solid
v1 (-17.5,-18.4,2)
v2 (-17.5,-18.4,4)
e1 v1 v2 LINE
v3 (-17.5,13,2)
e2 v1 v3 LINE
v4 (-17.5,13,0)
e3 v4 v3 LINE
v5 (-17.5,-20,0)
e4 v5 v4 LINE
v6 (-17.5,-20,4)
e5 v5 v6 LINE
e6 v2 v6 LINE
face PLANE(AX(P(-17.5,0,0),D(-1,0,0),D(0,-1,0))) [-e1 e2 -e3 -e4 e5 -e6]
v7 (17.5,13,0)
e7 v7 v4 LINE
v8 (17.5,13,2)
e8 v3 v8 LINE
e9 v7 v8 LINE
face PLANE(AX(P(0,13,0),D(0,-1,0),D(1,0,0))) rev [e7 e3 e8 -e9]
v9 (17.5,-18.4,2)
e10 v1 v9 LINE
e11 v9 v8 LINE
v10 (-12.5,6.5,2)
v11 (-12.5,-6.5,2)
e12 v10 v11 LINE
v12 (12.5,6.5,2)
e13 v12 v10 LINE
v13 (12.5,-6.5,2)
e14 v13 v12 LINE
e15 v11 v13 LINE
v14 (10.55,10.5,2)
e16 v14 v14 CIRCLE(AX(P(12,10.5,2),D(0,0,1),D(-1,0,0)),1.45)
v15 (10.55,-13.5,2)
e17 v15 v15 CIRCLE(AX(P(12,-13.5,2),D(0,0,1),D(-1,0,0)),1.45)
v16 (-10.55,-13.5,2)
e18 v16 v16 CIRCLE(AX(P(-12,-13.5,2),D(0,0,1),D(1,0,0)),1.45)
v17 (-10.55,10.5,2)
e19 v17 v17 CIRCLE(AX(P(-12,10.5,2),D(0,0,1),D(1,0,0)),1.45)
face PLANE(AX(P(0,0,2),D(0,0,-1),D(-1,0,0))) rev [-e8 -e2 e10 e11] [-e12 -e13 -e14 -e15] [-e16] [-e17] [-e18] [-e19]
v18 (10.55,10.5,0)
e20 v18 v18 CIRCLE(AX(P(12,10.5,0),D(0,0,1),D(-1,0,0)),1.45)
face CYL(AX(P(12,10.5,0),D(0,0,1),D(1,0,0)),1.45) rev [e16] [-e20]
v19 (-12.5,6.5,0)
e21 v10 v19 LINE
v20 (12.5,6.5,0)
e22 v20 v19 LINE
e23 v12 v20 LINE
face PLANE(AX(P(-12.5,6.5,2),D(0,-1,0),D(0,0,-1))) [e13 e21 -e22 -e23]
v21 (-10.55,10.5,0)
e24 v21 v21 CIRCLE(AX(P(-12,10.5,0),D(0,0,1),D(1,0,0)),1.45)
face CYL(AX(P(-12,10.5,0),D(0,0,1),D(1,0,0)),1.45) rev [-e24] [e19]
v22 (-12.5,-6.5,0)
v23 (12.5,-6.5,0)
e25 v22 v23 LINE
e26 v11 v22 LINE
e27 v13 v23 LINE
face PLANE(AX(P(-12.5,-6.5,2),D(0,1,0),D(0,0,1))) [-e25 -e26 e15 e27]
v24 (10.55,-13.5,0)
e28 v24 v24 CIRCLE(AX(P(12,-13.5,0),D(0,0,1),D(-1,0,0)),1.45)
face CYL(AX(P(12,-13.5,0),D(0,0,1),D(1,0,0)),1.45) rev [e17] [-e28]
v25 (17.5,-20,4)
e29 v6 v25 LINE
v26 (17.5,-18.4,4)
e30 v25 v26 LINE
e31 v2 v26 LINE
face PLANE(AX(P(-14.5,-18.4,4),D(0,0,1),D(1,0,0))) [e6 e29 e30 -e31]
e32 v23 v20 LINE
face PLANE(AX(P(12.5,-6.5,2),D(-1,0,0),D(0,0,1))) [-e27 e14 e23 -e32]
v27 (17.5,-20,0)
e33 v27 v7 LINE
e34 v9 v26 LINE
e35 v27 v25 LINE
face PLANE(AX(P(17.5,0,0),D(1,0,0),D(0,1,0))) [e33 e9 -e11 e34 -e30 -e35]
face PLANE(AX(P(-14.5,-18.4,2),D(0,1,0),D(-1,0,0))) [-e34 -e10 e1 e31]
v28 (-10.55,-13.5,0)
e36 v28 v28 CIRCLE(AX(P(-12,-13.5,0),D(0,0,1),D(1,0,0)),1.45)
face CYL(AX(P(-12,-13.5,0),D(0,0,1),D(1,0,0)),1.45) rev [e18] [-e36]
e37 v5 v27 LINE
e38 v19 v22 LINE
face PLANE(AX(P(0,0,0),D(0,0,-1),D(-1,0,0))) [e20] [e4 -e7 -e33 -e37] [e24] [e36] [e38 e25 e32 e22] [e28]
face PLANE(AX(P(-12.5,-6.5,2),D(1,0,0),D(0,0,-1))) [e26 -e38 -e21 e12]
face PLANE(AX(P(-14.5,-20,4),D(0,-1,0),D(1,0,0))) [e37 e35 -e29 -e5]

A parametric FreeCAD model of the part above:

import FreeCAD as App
import Part
import Sketcher
from FreeCAD import Vector
Q = App.Units.Quantity

doc = App.newDocument("Part")
body = doc.addObject("PartDesign::Body", "Body")

sketch1 = doc.addObject("Sketcher::SketchObject", "Sketch")
body.addObject(sketch1)
sketch1.AttachmentSupport = (doc.XY_Plane, [""])
sketch1.MapMode = "FlatFace"
sketch1.addGeometry(Part.LineSegment(Vector(-14.5, 12, 0), Vector(-14.5, -16, 0)), False)
sketch1.addGeometry(Part.LineSegment(Vector(-14.5, -16, 0), Vector(14.5, -16, 0)), False)
sketch1.addGeometry(Part.LineSegment(Vector(14.5, -16, 0), Vector(14.5, 12, 0)), False)
sketch1.addGeometry(Part.LineSegment(Vector(14.5, 12, 0), Vector(-14.5, 12, 0)), False)
sketch1.addGeometry(Part.LineSegment(Vector(12.5, -6.5, 0), Vector(-12.5, -6.5, 0)), False)
sketch1.addGeometry(Part.LineSegment(Vector(-12.5, -6.5, 0), Vector(-12.5, 6.5, 0)), False)
sketch1.addGeometry(Part.LineSegment(Vector(-12.5, 6.5, 0), Vector(12.5, 6.5, 0)), False)
sketch1.addGeometry(Part.LineSegment(Vector(12.5, 6.5, 0), Vector(12.5, -6.5, 0)), False)
sketch1.addConstraint(Sketcher.Constraint("Coincident", 0, 2, 1, 1))
sketch1.addConstraint(Sketcher.Constraint("Coincident", 1, 2, 2, 1))
sketch1.addConstraint(Sketcher.Constraint("Coincident", 2, 2, 3, 1))
sketch1.addConstraint(Sketcher.Constraint("Coincident", 3, 2, 0, 1))
sketch1.addConstraint(Sketcher.Constraint("Coincident", 4, 2, 5, 1))
sketch1.addConstraint(Sketcher.Constraint("Coincident", 5, 2, 6, 1))
sketch1.addConstraint(Sketcher.Constraint("Coincident", 6, 2, 7, 1))
sketch1.addConstraint(Sketcher.Constraint("Coincident", 7, 2, 4, 1))
sketch1.addConstraint(Sketcher.Constraint("Vertical", 0))
sketch1.addConstraint(Sketcher.Constraint("Horizontal", 1))
sketch1.addConstraint(Sketcher.Constraint("Vertical", 2))
sketch1.addConstraint(Sketcher.Constraint("Horizontal", 3))
sketch1.addConstraint(Sketcher.Constraint("Horizontal", 4))
sketch1.addConstraint(Sketcher.Constraint("Vertical", 5))
sketch1.addConstraint(Sketcher.Constraint("Horizontal", 6))
sketch1.addConstraint(Sketcher.Constraint("Vertical", 7))
sketch1.addConstraint(Sketcher.Constraint("Symmetric", 4, 2, 6, 2, -1, 1))
sketch1.addConstraint(Sketcher.Constraint("DistanceX", 1, 1, 1, 2, Q("29 mm")))
sketch1.addConstraint(Sketcher.Constraint("DistanceX", 4, 2, 4, 1, Q("25 mm")))
sketch1.addConstraint(Sketcher.Constraint("DistanceY", 0, 2, 0, 1, Q("28 mm")))
sketch1.addConstraint(Sketcher.Constraint("DistanceY", 5, 1, 5, 2, Q("13 mm")))
sketch1.addConstraint(Sketcher.Constraint("DistanceY", 0, 2, -1, 1, Q("16 mm")))
sketch1.addConstraint(Sketcher.Constraint("DistanceX", 0, 2, 4, 2, Q("2 mm")))
pad1 = doc.addObject("PartDesign::Pad", "Pad")
body.addObject(pad1)
pad1.Profile = sketch1
pad1.Length = 2

sketch2 = doc.addObject("Sketcher::SketchObject", "Sketch001")
body.addObject(sketch2)
sketch2.AttachmentSupport = (doc.XY_Plane, [""])
sketch2.MapMode = "FlatFace"
sketch2.AttachmentOffset = App.Placement(Vector(0, 0, 2), App.Rotation())
sketch2.addGeometry(Part.Circle(Vector(-12, 10.5, 0), Vector(0, 0, 1), 1.45), False)
sketch2.addGeometry(Part.Circle(Vector(-12, -13.5, 0), Vector(0, 0, 1), 1.45), False)
sketch2.addGeometry(Part.Circle(Vector(12, -13.5, 0), Vector(0, 0, 1), 1.45), False)
sketch2.addGeometry(Part.Circle(Vector(12, 10.5, 0), Vector(0, 0, 1), 1.45), False)
sketch2.addConstraint(Sketcher.Constraint("Equal", 0, 1))
sketch2.addConstraint(Sketcher.Constraint("Equal", 1, 2))
sketch2.addConstraint(Sketcher.Constraint("Equal", 2, 3))
sketch2.addConstraint(Sketcher.Constraint("Symmetric", 1, 3, 2, 3, -2))
sketch2.addConstraint(Sketcher.Constraint("Symmetric", 0, 3, 3, 3, -2))
sketch2.addConstraint(Sketcher.Constraint("Vertical", 0, 3, 1, 3))
sketch2.addConstraint(Sketcher.Constraint("Diameter", 0, Q("2.9 mm")))
sketch2.addConstraint(Sketcher.Constraint("DistanceX", 0, 3, -1, 1, Q("12 mm")))
sketch2.addConstraint(Sketcher.Constraint("DistanceY", 1, 3, 0, 3, Q("24 mm")))
sketch2.addConstraint(Sketcher.Constraint("DistanceY", -1, 1, 0, 3, Q("10.5 mm")))
pocket1 = doc.addObject("PartDesign::Pocket", "Pocket")
body.addObject(pocket1)
pocket1.Profile = sketch2
pocket1.Type = "ThroughAll"

sketch3 = doc.addObject("Sketcher::SketchObject", "Sketch002")
body.addObject(sketch3)
sketch3.AttachmentSupport = (doc.YZ_Plane, [""])
sketch3.MapMode = "FlatFace"
sketch3.AttachmentOffset = App.Placement(Vector(0, 0, 14.5), App.Rotation())
sketch3.addGeometry(Part.LineSegment(Vector(-20, 4, 0), Vector(-20, 0, 0)), False)
sketch3.addGeometry(Part.LineSegment(Vector(-20, 0, 0), Vector(-16, 0, 0)), False)
sketch3.addGeometry(Part.LineSegment(Vector(-16, 0, 0), Vector(-16, 2, 0)), False)
sketch3.addGeometry(Part.LineSegment(Vector(-16, 2, 0), Vector(-18.4, 2, 0)), False)
sketch3.addGeometry(Part.LineSegment(Vector(-18.4, 2, 0), Vector(-18.4, 4, 0)), False)
sketch3.addGeometry(Part.LineSegment(Vector(-18.4, 4, 0), Vector(-20, 4, 0)), False)
sketch3.addConstraint(Sketcher.Constraint("Coincident", 0, 2, 1, 1))
sketch3.addConstraint(Sketcher.Constraint("Coincident", 1, 2, 2, 1))
sketch3.addConstraint(Sketcher.Constraint("Coincident", 2, 2, 3, 1))
sketch3.addConstraint(Sketcher.Constraint("Coincident", 3, 2, 4, 1))
sketch3.addConstraint(Sketcher.Constraint("Coincident", 4, 2, 5, 1))
sketch3.addConstraint(Sketcher.Constraint("Coincident", 5, 2, 0, 1))
sketch3.addConstraint(Sketcher.Constraint("Vertical", 0))
sketch3.addConstraint(Sketcher.Constraint("Horizontal", 1))
sketch3.addConstraint(Sketcher.Constraint("Vertical", 2))
sketch3.addConstraint(Sketcher.Constraint("Horizontal", 3))
sketch3.addConstraint(Sketcher.Constraint("Vertical", 4))
sketch3.addConstraint(Sketcher.Constraint("Horizontal", 5))
sketch3.addConstraint(Sketcher.Constraint("PointOnObject", 0, 2, -1))
sketch3.addConstraint(Sketcher.Constraint("Equal", 1, 0))
sketch3.addConstraint(Sketcher.Constraint("Equal", 2, 4))
sketch3.addConstraint(Sketcher.Constraint("DistanceX", 1, 1, 1, 2, Q("4 mm")))
sketch3.addConstraint(Sketcher.Constraint("DistanceX", 3, 2, 3, 1, Q("2.4 mm")))
sketch3.addConstraint(Sketcher.Constraint("DistanceX", 0, 2, -1, 1, Q("20 mm")))
pad2 = doc.addObject("PartDesign::Pad", "Pad001")
body.addObject(pad2)
pad2.Profile = sketch3
pad2.Length = 29
pad2.Reversed = True

sketch4 = doc.addObject("Sketcher::SketchObject", "Sketch003")
body.addObject(sketch4)
sketch4.AttachmentSupport = (doc.XZ_Plane, [""])
sketch4.MapMode = "FlatFace"
sketch4.AttachmentOffset = App.Placement(Vector(0, 0, -12), App.Rotation())
sketch4.addGeometry(Part.LineSegment(Vector(-14.5, 0, 0), Vector(-14.5, 2, 0)), False)
sketch4.addGeometry(Part.LineSegment(Vector(-14.5, 2, 0), Vector(14.5, 2, 0)), False)
sketch4.addGeometry(Part.LineSegment(Vector(14.5, 2, 0), Vector(14.5, 0, 0)), False)
sketch4.addGeometry(Part.LineSegment(Vector(14.5, 0, 0), Vector(-14.5, 0, 0)), False)
sketch4.addConstraint(Sketcher.Constraint("Coincident", 0, 2, 1, 1))
sketch4.addConstraint(Sketcher.Constraint("Coincident", 1, 2, 2, 1))
sketch4.addConstraint(Sketcher.Constraint("Coincident", 2, 2, 3, 1))
sketch4.addConstraint(Sketcher.Constraint("Coincident", 3, 2, 0, 1))
sketch4.addConstraint(Sketcher.Constraint("Vertical", 0))
sketch4.addConstraint(Sketcher.Constraint("Horizontal", 1))
sketch4.addConstraint(Sketcher.Constraint("Vertical", 2))
sketch4.addConstraint(Sketcher.Constraint("Horizontal", 3))
sketch4.addConstraint(Sketcher.Constraint("Symmetric", 2, 2, 3, 2, -1, 1))
sketch4.addConstraint(Sketcher.Constraint("DistanceX", 1, 1, 1, 2, Q("29 mm")))
sketch4.addConstraint(Sketcher.Constraint("DistanceY", 0, 1, 0, 2, Q("2 mm")))
pad3 = doc.addObject("PartDesign::Pad", "Pad002")
body.addObject(pad3)
pad3.Profile = sketch4
pad3.Length = 1
pad3.Reversed = True

sketch5 = doc.addObject("Sketcher::SketchObject", "Sketch004")
body.addObject(sketch5)
sketch5.AttachmentSupport = (doc.YZ_Plane, [""])
sketch5.MapMode = "FlatFace"
sketch5.AttachmentOffset = App.Placement(Vector(0, 0, -14.5), App.Rotation())
sketch5.addGeometry(Part.LineSegment(Vector(13, 0, 0), Vector(-20, 0, 0)), False)
sketch5.addGeometry(Part.LineSegment(Vector(-20, 0, 0), Vector(-20, 4, 0)), False)
sketch5.addGeometry(Part.LineSegment(Vector(-20, 4, 0), Vector(-18.4, 4, 0)), False)
sketch5.addGeometry(Part.LineSegment(Vector(-18.4, 4, 0), Vector(-18.4, 2, 0)), False)
sketch5.addGeometry(Part.LineSegment(Vector(-18.4, 2, 0), Vector(13, 2, 0)), False)
sketch5.addGeometry(Part.LineSegment(Vector(13, 2, 0), Vector(13, 0, 0)), False)
sketch5.addConstraint(Sketcher.Constraint("Coincident", 0, 2, 1, 1))
sketch5.addConstraint(Sketcher.Constraint("Coincident", 1, 2, 2, 1))
sketch5.addConstraint(Sketcher.Constraint("Coincident", 2, 2, 3, 1))
sketch5.addConstraint(Sketcher.Constraint("Coincident", 3, 2, 4, 1))
sketch5.addConstraint(Sketcher.Constraint("Coincident", 4, 2, 5, 1))
sketch5.addConstraint(Sketcher.Constraint("Coincident", 5, 2, 0, 1))
sketch5.addConstraint(Sketcher.Constraint("Horizontal", 0))
sketch5.addConstraint(Sketcher.Constraint("Vertical", 1))
sketch5.addConstraint(Sketcher.Constraint("Horizontal", 2))
sketch5.addConstraint(Sketcher.Constraint("Vertical", 3))
sketch5.addConstraint(Sketcher.Constraint("Horizontal", 4))
sketch5.addConstraint(Sketcher.Constraint("Vertical", 5))
sketch5.addConstraint(Sketcher.Constraint("PointOnObject", 0, 2, -1))
sketch5.addConstraint(Sketcher.Constraint("Equal", 3, 5))
sketch5.addConstraint(Sketcher.Constraint("DistanceX", 0, 2, 0, 1, Q("33 mm")))
sketch5.addConstraint(Sketcher.Constraint("DistanceY", 1, 1, 1, 2, Q("4 mm")))
sketch5.addConstraint(Sketcher.Constraint("DistanceX", 2, 1, 2, 2, Q("1.6 mm")))
sketch5.addConstraint(Sketcher.Constraint("DistanceX", 0, 2, -1, 1, Q("20 mm")))
pad4 = doc.addObject("PartDesign::Pad", "Pad003")
body.addObject(pad4)
pad4.Profile = sketch5
pad4.Length = 3
pad4.Reversed = True

sketch6 = doc.addObject("Sketcher::SketchObject", "Sketch005")
body.addObject(sketch6)
sketch6.AttachmentSupport = (doc.YZ_Plane, [""])
sketch6.MapMode = "FlatFace"
sketch6.AttachmentOffset = App.Placement(Vector(0, 0, 14.5), App.Rotation())
sketch6.addGeometry(Part.LineSegment(Vector(13, 2, 0), Vector(-18.4, 2, 0)), False)
sketch6.addGeometry(Part.LineSegment(Vector(-18.4, 2, 0), Vector(-18.4, 4, 0)), False)
sketch6.addGeometry(Part.LineSegment(Vector(-18.4, 4, 0), Vector(-20, 4, 0)), False)
sketch6.addGeometry(Part.LineSegment(Vector(-20, 4, 0), Vector(-20, 0, 0)), False)
sketch6.addGeometry(Part.LineSegment(Vector(-20, 0, 0), Vector(13, 0, 0)), False)
sketch6.addGeometry(Part.LineSegment(Vector(13, 0, 0), Vector(13, 2, 0)), False)
sketch6.addConstraint(Sketcher.Constraint("Coincident", 0, 2, 1, 1))
sketch6.addConstraint(Sketcher.Constraint("Coincident", 1, 2, 2, 1))
sketch6.addConstraint(Sketcher.Constraint("Coincident", 2, 2, 3, 1))
sketch6.addConstraint(Sketcher.Constraint("Coincident", 3, 2, 4, 1))
sketch6.addConstraint(Sketcher.Constraint("Coincident", 4, 2, 5, 1))
sketch6.addConstraint(Sketcher.Constraint("Coincident", 5, 2, 0, 1))
sketch6.addConstraint(Sketcher.Constraint("Horizontal", 0))
sketch6.addConstraint(Sketcher.Constraint("Vertical", 1))
sketch6.addConstraint(Sketcher.Constraint("Horizontal", 2))
sketch6.addConstraint(Sketcher.Constraint("Vertical", 3))
sketch6.addConstraint(Sketcher.Constraint("Horizontal", 4))
sketch6.addConstraint(Sketcher.Constraint("Vertical", 5))
sketch6.addConstraint(Sketcher.Constraint("PointOnObject", 3, 2, -1))
sketch6.addConstraint(Sketcher.Constraint("Equal", 1, 5))
sketch6.addConstraint(Sketcher.Constraint("DistanceX", 4, 1, 4, 2, Q("33 mm")))
sketch6.addConstraint(Sketcher.Constraint("DistanceY", 1, 1, 1, 2, Q("2 mm")))
sketch6.addConstraint(Sketcher.Constraint("DistanceX", 0, 2, 0, 1, Q("31.4 mm")))
sketch6.addConstraint(Sketcher.Constraint("DistanceX", 2, 2, -1, 1, Q("20 mm")))
pad5 = doc.addObject("PartDesign::Pad", "Pad004")
body.addObject(pad5)
pad5.Profile = sketch6
pad5.Length = 3

doc.recompute()
